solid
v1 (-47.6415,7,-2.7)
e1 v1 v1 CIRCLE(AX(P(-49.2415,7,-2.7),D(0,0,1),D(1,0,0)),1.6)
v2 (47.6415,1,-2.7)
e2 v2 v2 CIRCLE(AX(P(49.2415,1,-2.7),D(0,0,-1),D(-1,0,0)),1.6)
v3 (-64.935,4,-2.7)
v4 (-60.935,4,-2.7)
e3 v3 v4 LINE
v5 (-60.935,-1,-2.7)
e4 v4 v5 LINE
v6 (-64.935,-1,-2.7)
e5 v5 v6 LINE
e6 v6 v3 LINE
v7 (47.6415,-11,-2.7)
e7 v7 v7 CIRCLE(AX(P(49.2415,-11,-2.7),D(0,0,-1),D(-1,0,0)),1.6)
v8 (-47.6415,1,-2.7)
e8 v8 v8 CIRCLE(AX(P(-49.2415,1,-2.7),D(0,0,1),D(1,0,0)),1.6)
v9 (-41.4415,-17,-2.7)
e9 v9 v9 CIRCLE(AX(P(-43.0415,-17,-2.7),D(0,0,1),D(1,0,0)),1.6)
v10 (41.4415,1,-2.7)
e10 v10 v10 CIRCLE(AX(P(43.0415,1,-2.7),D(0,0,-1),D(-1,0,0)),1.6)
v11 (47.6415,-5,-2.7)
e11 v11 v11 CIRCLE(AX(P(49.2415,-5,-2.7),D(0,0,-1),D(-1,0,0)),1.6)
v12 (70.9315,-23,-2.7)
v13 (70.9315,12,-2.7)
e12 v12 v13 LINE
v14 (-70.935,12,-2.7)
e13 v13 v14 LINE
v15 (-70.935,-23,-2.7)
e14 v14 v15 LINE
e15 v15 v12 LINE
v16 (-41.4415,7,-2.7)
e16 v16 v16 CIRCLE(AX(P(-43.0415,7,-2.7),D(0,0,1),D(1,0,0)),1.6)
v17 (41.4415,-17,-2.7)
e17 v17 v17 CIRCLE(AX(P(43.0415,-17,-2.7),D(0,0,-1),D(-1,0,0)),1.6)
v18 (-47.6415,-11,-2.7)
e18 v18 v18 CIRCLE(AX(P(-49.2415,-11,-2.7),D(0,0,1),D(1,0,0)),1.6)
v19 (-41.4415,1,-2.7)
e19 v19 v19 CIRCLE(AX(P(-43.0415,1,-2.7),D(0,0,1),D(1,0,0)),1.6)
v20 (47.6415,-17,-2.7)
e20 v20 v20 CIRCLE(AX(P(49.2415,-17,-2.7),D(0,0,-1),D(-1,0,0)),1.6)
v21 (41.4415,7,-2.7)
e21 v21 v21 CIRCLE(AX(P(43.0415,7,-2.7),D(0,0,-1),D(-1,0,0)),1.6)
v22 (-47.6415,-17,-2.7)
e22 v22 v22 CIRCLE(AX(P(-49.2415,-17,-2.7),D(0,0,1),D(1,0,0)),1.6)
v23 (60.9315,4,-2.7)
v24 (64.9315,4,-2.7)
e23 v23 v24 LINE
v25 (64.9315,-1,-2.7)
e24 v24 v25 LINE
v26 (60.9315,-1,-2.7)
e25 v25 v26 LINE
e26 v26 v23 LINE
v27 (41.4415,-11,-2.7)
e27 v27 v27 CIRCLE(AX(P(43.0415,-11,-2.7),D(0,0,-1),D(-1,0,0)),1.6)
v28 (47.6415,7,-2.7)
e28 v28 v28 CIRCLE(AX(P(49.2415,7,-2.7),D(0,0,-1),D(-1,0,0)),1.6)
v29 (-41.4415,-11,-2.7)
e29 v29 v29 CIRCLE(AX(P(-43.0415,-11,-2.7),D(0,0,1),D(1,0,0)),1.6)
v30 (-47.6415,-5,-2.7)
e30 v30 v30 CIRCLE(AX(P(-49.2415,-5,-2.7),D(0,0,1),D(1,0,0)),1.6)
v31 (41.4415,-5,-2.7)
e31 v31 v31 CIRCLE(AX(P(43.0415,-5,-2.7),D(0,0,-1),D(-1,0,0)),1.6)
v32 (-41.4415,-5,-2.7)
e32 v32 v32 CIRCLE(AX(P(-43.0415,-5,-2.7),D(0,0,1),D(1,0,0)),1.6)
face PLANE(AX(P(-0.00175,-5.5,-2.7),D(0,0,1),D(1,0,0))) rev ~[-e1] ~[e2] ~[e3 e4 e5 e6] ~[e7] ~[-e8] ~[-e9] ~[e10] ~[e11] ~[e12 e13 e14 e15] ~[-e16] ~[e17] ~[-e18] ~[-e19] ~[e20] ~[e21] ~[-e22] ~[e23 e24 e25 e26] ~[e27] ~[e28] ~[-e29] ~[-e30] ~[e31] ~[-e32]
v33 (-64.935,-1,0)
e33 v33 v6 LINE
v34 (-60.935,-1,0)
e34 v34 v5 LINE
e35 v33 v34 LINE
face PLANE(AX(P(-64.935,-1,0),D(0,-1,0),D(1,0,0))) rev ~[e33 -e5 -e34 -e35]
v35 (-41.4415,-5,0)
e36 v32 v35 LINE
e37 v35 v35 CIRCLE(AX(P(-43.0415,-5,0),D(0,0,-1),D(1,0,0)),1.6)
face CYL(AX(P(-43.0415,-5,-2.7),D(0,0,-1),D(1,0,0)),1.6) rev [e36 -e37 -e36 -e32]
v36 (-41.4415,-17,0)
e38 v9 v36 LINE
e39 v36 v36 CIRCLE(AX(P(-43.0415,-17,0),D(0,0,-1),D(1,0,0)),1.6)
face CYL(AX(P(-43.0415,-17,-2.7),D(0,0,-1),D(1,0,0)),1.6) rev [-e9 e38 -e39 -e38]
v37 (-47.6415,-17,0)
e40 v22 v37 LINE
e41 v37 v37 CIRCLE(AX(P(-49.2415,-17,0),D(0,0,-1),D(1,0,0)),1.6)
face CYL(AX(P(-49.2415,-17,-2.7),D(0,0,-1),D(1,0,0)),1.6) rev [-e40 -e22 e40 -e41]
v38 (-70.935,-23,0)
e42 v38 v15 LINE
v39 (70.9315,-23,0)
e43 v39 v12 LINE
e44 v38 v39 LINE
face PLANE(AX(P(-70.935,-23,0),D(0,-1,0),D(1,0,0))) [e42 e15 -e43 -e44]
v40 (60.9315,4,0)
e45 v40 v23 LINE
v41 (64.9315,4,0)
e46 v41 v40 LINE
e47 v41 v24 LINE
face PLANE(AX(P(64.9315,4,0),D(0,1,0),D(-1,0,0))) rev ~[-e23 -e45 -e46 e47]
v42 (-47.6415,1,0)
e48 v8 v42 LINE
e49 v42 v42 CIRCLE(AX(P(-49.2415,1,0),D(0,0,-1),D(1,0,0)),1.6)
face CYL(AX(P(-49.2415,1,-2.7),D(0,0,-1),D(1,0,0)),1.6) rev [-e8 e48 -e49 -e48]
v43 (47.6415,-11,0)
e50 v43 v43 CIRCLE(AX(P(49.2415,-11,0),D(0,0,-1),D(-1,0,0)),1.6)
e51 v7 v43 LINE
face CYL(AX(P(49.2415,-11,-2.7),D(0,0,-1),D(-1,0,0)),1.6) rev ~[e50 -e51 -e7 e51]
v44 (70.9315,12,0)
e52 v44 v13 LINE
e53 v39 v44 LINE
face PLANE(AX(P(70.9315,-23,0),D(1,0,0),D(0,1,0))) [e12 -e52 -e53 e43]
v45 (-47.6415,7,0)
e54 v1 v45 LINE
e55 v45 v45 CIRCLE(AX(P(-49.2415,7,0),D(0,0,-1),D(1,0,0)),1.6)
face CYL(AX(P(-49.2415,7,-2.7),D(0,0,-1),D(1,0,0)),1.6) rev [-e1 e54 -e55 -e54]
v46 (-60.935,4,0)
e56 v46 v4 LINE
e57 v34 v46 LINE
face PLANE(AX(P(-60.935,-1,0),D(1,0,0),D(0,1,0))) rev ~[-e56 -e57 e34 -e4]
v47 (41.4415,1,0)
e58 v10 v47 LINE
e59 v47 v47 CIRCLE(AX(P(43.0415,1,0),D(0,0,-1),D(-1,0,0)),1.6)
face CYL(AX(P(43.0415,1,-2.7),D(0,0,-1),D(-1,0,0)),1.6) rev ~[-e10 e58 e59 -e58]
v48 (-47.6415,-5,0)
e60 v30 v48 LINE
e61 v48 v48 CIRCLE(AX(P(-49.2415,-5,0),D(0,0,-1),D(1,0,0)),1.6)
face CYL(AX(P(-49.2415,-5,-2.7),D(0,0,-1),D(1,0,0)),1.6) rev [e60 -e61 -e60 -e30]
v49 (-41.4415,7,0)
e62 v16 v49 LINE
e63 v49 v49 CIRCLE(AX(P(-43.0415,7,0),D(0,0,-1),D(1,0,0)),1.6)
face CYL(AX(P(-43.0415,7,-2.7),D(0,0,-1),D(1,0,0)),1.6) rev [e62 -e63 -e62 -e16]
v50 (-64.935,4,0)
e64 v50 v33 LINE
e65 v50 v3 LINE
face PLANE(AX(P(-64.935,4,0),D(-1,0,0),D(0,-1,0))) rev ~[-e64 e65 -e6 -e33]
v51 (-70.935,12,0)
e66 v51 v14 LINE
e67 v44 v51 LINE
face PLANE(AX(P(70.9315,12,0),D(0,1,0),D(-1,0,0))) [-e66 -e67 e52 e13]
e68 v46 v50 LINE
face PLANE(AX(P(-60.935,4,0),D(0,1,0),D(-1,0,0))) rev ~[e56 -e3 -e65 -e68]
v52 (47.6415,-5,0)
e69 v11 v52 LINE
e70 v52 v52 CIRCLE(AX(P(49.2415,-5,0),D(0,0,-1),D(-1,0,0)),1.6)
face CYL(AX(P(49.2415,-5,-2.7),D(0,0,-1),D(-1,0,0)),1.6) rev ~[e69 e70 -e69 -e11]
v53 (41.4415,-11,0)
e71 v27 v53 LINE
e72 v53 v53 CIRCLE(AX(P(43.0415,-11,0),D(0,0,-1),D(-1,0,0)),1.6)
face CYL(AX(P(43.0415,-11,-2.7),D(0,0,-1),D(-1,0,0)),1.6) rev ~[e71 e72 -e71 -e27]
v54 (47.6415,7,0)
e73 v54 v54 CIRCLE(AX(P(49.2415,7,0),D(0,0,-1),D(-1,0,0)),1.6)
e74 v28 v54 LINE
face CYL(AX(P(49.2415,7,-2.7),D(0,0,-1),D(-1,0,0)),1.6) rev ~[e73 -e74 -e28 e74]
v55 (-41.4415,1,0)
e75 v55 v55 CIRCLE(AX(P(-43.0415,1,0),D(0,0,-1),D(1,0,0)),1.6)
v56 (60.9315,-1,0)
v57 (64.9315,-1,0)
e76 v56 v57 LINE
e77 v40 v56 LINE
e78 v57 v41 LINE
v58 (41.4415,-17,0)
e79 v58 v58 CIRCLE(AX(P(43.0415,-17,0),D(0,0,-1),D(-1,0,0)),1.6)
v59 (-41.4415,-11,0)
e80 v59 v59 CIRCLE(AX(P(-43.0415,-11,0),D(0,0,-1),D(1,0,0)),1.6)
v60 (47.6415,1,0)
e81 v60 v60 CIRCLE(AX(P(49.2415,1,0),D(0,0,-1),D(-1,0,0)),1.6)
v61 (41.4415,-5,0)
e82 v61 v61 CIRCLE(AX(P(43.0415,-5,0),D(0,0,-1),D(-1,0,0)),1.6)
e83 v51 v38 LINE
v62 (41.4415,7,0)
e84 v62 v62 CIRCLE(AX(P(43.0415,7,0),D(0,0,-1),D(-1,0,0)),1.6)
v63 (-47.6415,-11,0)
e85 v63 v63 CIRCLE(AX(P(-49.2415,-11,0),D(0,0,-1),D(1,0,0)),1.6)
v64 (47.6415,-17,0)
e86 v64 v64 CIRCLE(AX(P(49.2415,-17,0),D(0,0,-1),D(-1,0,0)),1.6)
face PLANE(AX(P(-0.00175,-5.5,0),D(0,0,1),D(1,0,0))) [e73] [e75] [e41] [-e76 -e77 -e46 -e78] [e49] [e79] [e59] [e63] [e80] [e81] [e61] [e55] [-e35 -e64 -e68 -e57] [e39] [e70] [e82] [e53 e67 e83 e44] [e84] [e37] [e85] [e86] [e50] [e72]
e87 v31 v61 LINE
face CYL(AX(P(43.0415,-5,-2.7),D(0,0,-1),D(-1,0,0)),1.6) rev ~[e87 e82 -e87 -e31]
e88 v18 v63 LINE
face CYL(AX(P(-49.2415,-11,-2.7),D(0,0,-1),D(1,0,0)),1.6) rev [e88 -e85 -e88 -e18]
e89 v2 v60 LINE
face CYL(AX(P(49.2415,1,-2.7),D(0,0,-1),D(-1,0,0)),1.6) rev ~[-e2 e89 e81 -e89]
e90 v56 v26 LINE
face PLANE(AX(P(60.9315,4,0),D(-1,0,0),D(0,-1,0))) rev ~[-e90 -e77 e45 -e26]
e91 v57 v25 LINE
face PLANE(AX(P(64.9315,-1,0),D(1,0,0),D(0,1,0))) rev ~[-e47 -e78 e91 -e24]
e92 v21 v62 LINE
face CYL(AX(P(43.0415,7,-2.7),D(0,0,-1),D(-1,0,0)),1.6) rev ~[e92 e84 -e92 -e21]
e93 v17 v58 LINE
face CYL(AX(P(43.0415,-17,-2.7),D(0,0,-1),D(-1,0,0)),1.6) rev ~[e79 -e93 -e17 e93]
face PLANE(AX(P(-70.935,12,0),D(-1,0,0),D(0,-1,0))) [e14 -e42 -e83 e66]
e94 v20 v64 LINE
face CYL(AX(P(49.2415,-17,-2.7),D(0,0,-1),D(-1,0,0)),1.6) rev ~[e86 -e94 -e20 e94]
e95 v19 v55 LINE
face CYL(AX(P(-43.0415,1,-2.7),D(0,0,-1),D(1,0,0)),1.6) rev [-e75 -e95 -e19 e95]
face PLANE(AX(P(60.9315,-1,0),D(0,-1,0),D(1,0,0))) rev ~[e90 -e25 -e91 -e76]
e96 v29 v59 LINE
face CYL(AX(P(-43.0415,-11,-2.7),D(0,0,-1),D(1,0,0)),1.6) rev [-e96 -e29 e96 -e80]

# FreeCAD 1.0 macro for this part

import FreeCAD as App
import Part
import Sketcher
from FreeCAD import Vector
Q = App.Units.Quantity


def add_polygon(sketch, points):
    """Adds a closed chain of lines whose ends are joined by coincident constraints."""
    first, n = sketch.GeometryCount, len(points)
    for a, b in zip(points, points[1:] + points[:1]):
        sketch.addGeometry(Part.LineSegment(App.Vector(*a, 0), App.Vector(*b, 0)), False)
    for i in range(n):
        sketch.addConstraint(Sketcher.Constraint("Coincident", first + i, 2, first + (i + 1) % n, 1))

doc = App.newDocument("Part")
body = doc.addObject("PartDesign::Body", "Body")

sketch1 = body.newObject("Sketcher::SketchObject", "Sketch")
sketch1.AttachmentSupport = (doc.getObject("XY_Plane"), [""])
sketch1.MapMode = "FlatFace"
add_polygon(sketch1, [(70.9315, -23), (70.9315, 12), (-70.935, 12), (-70.935, -23)])
sketch1.addConstraint([
    Sketcher.Constraint("Vertical", 0),
    Sketcher.Constraint("Horizontal", 1),
    Sketcher.Constraint("Vertical", 2),
    Sketcher.Constraint("Horizontal", 3),
    Sketcher.Constraint("DistanceY", 0, 1, 0, 2, Q("35 mm")),
    Sketcher.Constraint("DistanceY", -1, 1, 0, 2, Q("12 mm")),
    Sketcher.Constraint("DistanceX", 1, 2, 1, 1, Q("141.8665 mm")),
    Sketcher.Constraint("DistanceX", 1, 2, -1, 1, Q("70.935 mm")),
])
pad1 = body.newObject("PartDesign::Pad", "Pad")
pad1.Profile = sketch1
pad1.Length = 2.7
pad1.Reversed = True

sketch2 = body.newObject("Sketcher::SketchObject", "Sketch001")
sketch2.AttachmentSupport = (doc.getObject("XY_Plane"), [""])
sketch2.MapMode = "FlatFace"
sketch2.AttachmentOffset = App.Placement(Vector(0, 0, -2.7), App.Rotation())
sketch2.addGeometry([
    Part.Circle(Vector(49.2415, 7, 0), Vector(0, 0, 1), 1.6),
    Part.Circle(Vector(43.0415, 7, 0), Vector(0, 0, 1), 1.6),
    Part.Circle(Vector(49.2415, 1, 0), Vector(0, 0, 1), 1.6),
    Part.Circle(Vector(43.0415, 1, 0), Vector(0, 0, 1), 1.6),
    Part.Circle(Vector(49.2415, -5, 0), Vector(0, 0, 1), 1.6),
    Part.Circle(Vector(43.0415, -5, 0), Vector(0, 0, 1), 1.6),
    Part.Circle(Vector(49.2415, -11, 0), Vector(0, 0, 1), 1.6),
    Part.Circle(Vector(49.2415, -17, 0), Vector(0, 0, 1), 1.6),
    Part.Circle(Vector(43.0415, -11, 0), Vector(0, 0, 1), 1.6),
    Part.Circle(Vector(43.0415, -17, 0), Vector(0, 0, 1), 1.6),
], False)
sketch2.addConstraint([
    Sketcher.Constraint("Equal", 0, 1),
    Sketcher.Constraint("Equal", 1, 2),
    Sketcher.Constraint("Equal", 2, 3),
    Sketcher.Constraint("Equal", 3, 4),
    Sketcher.Constraint("Equal", 4, 5),
    Sketcher.Constraint("Equal", 5, 6),
    Sketcher.Constraint("Equal", 6, 7),
    Sketcher.Constraint("Equal", 7, 8),
    Sketcher.Constraint("Equal", 8, 9),
    Sketcher.Constraint("Horizontal", 0, 3, 1, 3),
    Sketcher.Constraint("Horizontal", 2, 3, 3, 3),
    Sketcher.Constraint("Horizontal", 4, 3, 5, 3),
    Sketcher.Constraint("Horizontal", 6, 3, 8, 3),
    Sketcher.Constraint("Horizontal", 7, 3, 9, 3),
    Sketcher.Constraint("Vertical", 0, 3, 2, 3),
    Sketcher.Constraint("Vertical", 1, 3, 3, 3),
    Sketcher.Constraint("Vertical", 2, 3, 4, 3),
    Sketcher.Constraint("Vertical", 3, 3, 5, 3),
    Sketcher.Constraint("Vertical", 4, 3, 6, 3),
    Sketcher.Constraint("Vertical", 6, 3, 7, 3),
    Sketcher.Constraint("Vertical", 5, 3, 8, 3),
    Sketcher.Constraint("Vertical", 8, 3, 9, 3),
    Sketcher.Constraint("Diameter", 0, Q("3.2 mm")),
    Sketcher.Constraint("DistanceY", -1, 1, 0, 3, Q("7 mm")),
    Sketcher.Constraint("DistanceY", -1, 1, 2, 3, Q("1 mm")),
    Sketcher.Constraint("DistanceY", 4, 3, -1, 1, Q("5 mm")),
    Sketcher.Constraint("DistanceY", 6, 3, -1, 1, Q("11 mm")),
    Sketcher.Constraint("DistanceY", 7, 3, -1, 1, Q("17 mm")),
    Sketcher.Constraint("DistanceX", 1, 3, 0, 3, Q("6.2 mm")),
    Sketcher.Constraint("DistanceX", -1, 1, 0, 3, Q("49.2415 mm")),
])
pocket1 = body.newObject("PartDesign::Pocket", "Pocket")
pocket1.Profile = sketch2
pocket1.Type = "ThroughAll"
pocket1.Reversed = True
doc.recompute()

mirrored = body.newObject("PartDesign::Mirrored", "Mirrored")
mirrored.Originals = [pocket1]
mirrored.MirrorPlane = (doc.getObject("YZ_Plane"), [""])
body.Tip = mirrored

sketch3 = body.newObject("Sketcher::SketchObject", "Sketch002")
sketch3.AttachmentSupport = (doc.getObject("XY_Plane"), [""])
sketch3.MapMode = "FlatFace"
add_polygon(sketch3, [(-60.935, 4), (-64.935, 4), (-64.935, -1), (-60.935, -1)])
add_polygon(sketch3, [(60.9315, 4), (60.9315, -1), (64.9315, -1), (64.9315, 4)])
sketch3.addConstraint([
    Sketcher.Constraint("Horizontal", 0),
    Sketcher.Constraint("Vertical", 1),
    Sketcher.Constraint("Horizontal", 2),
    Sketcher.Constraint("Vertical", 3),
    Sketcher.Constraint("Vertical", 4),
    Sketcher.Constraint("Horizontal", 5),
    Sketcher.Constraint("Vertical", 6),
    Sketcher.Constraint("Horizontal", 7),
    Sketcher.Constraint("Horizontal", 2, 2, 4, 2),
    Sketcher.Constraint("Horizontal", 3, 2, 6, 2),
    Sketcher.Constraint("Equal", 2, 5),
    Sketcher.Constraint("DistanceX", 0, 2, 0, 1, Q("4 mm")),
    Sketcher.Constraint("DistanceY", 1, 2, 1, 1, Q("5 mm")),
    Sketcher.Constraint("DistanceY", -1, 1, 0, 2, Q("4 mm")),
    Sketcher.Constraint("DistanceX", 0, 2, -1, 1, Q("64.935 mm")),
    Sketcher.Constraint("DistanceX", -1, 1, 4, 2, Q("60.9315 mm")),
])
pocket2 = body.newObject("PartDesign::Pocket", "Pocket001")
pocket2.Profile = sketch3
pocket2.Length = 2.7

doc.recompute()
